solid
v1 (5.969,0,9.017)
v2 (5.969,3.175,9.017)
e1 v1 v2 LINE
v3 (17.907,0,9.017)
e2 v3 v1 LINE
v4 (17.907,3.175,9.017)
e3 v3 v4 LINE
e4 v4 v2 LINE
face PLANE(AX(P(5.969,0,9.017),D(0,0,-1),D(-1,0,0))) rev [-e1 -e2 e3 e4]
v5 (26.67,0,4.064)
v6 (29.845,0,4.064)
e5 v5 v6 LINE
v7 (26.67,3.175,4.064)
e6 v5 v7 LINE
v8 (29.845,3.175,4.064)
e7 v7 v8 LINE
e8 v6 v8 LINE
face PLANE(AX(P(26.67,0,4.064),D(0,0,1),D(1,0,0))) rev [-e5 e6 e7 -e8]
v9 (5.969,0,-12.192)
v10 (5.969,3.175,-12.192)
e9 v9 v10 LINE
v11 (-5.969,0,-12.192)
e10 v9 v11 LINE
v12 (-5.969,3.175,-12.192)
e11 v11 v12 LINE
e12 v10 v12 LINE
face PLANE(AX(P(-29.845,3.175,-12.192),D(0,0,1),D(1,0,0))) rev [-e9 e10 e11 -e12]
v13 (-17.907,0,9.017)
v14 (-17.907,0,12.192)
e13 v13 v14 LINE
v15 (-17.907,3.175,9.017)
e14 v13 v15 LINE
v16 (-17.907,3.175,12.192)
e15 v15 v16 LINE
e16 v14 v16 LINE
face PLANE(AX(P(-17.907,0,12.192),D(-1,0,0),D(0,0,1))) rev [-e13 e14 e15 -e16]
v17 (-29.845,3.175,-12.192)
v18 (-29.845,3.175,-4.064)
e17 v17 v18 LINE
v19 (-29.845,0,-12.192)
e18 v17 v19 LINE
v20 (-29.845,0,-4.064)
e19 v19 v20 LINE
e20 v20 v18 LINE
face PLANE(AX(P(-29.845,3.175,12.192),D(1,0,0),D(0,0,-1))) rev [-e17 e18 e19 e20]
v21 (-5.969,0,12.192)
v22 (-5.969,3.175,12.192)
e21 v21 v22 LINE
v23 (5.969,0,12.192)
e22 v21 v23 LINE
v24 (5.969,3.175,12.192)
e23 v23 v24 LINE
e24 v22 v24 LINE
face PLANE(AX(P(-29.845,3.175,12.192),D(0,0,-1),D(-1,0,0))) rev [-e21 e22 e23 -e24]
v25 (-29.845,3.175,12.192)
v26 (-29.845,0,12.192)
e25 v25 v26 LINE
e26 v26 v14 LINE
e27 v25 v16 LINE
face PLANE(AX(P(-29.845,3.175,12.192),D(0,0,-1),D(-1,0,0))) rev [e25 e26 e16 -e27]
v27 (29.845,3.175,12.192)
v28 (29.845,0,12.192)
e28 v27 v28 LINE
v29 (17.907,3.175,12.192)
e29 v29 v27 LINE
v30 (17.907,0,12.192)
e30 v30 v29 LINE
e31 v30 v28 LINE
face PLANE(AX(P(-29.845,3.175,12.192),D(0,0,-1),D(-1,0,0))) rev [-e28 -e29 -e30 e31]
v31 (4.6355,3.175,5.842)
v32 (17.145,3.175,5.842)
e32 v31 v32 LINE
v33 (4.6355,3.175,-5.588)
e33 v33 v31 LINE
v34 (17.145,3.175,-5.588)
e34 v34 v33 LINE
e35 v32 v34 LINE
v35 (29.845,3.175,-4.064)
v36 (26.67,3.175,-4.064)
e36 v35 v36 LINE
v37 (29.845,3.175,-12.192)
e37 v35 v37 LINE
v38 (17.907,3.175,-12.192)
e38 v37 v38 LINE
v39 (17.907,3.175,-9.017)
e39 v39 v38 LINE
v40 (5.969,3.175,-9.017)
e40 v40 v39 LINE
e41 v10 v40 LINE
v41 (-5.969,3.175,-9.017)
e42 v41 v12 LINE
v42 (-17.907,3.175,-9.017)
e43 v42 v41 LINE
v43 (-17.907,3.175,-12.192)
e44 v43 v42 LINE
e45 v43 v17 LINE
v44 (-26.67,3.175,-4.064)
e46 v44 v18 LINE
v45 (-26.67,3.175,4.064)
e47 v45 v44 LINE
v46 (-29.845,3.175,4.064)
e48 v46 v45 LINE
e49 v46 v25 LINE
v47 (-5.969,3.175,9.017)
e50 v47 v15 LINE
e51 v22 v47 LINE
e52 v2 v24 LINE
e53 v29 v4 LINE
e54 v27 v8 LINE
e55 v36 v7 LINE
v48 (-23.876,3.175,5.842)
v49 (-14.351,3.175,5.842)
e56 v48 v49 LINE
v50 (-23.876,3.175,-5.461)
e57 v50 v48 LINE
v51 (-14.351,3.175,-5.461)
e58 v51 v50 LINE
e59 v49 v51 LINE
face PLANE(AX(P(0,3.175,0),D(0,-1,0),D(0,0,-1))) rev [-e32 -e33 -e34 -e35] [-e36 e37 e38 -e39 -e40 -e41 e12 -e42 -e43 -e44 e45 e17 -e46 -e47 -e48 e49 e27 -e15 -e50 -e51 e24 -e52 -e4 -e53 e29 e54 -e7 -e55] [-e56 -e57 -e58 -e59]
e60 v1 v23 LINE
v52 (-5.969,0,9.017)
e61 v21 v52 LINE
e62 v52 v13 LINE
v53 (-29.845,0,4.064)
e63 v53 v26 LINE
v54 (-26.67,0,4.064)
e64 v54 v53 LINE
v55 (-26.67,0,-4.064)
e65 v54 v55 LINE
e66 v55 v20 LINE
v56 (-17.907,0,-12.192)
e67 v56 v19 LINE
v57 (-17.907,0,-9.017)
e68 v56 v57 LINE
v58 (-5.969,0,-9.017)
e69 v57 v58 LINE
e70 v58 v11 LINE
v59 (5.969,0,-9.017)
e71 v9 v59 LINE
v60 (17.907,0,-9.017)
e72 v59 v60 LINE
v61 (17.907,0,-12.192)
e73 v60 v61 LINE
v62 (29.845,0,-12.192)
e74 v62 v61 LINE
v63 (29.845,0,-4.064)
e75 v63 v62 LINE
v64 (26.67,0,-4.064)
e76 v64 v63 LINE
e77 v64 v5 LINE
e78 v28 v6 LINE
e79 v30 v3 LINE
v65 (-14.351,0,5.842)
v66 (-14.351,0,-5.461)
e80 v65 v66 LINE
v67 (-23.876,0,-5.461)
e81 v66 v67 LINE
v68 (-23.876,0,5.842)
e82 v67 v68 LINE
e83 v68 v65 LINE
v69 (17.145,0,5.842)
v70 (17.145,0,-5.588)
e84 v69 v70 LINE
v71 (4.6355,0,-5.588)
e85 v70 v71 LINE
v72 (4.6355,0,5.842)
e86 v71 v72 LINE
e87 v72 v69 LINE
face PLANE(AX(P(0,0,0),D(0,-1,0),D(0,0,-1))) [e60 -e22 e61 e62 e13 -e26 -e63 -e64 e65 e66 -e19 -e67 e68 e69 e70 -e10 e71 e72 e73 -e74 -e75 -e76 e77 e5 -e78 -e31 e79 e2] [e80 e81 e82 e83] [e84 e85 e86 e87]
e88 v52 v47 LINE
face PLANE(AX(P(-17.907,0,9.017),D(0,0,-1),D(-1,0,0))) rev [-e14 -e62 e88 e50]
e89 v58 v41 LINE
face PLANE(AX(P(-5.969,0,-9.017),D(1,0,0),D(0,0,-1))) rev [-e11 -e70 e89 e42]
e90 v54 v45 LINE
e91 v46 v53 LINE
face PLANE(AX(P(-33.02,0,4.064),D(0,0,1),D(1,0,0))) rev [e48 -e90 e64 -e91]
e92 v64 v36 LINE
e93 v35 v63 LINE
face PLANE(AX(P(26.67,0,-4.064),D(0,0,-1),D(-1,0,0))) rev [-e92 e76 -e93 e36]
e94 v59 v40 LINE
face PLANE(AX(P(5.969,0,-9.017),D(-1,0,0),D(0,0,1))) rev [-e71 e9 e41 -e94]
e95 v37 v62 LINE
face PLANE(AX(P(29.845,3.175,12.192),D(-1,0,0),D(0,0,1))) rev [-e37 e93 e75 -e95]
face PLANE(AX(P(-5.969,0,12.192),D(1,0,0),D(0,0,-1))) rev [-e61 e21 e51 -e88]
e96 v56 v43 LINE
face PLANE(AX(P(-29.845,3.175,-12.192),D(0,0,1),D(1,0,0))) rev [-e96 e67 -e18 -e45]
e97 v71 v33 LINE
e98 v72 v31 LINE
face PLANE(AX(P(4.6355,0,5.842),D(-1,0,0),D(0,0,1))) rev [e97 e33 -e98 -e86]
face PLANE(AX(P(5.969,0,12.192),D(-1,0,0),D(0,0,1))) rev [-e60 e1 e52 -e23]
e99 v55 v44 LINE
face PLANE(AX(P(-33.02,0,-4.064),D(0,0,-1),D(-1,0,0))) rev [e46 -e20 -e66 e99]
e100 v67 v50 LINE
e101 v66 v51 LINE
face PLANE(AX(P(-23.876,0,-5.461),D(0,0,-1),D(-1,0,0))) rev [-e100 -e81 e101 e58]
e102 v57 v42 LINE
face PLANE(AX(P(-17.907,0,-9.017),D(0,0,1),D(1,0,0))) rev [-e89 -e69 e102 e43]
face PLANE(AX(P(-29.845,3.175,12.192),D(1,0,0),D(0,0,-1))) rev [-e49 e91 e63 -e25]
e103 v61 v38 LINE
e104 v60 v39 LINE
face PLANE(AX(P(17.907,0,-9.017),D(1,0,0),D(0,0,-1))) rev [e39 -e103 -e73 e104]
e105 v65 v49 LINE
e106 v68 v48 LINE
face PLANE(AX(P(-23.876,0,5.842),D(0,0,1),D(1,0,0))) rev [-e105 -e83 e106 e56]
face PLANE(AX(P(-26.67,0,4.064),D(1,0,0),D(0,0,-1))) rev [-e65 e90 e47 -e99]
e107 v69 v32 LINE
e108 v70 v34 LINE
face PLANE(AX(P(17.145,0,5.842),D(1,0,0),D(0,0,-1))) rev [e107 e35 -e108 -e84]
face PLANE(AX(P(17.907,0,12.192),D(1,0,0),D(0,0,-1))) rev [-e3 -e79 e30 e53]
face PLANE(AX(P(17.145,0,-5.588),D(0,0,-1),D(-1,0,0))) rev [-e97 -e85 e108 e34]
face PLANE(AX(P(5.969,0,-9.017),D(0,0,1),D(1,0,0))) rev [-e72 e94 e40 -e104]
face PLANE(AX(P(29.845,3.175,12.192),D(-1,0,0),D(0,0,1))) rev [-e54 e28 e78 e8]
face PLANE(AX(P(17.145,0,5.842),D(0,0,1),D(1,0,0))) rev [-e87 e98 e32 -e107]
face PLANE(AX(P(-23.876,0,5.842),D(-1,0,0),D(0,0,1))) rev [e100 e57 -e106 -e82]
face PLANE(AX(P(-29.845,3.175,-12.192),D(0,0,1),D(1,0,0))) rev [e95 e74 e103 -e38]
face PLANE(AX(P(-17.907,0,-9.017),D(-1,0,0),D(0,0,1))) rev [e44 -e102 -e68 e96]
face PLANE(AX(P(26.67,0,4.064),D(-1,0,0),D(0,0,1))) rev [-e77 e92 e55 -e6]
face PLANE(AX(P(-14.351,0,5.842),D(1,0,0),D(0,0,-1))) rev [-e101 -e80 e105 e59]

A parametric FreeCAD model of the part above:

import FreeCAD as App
import Part
import Sketcher
Q = App.Units.Quantity

doc = App.newDocument("Part")
body = doc.addObject("PartDesign::Body", "Body")

# Sketch on XZ plane
sketch1 = body.newObject("Sketcher::SketchObject", "Sketch")
sketch1.AttachmentSupport = (doc.getObject("XZ_Plane"), [""])
sketch1.MapMode = "FlatFace"
sketch1.addGeometry([
    Part.LineSegment(App.Vector(-30, -12, 0), App.Vector(-30, 12, 0)),
    Part.LineSegment(App.Vector(-30, 12, 0), App.Vector(30, 12, 0)),
    Part.LineSegment(App.Vector(30, 12, 0), App.Vector(30, -12, 0)),
    Part.LineSegment(App.Vector(30, -12, 0), App.Vector(-30, -12, 0)),
], False)
sketch1.addConstraint([
    Sketcher.Constraint("Coincident", 0, 2, 1, 1),
    Sketcher.Constraint("Coincident", 1, 2, 2, 1),
    Sketcher.Constraint("Coincident", 2, 2, 3, 1),
    Sketcher.Constraint("Coincident", 3, 2, 0, 1),
    Sketcher.Constraint("Vertical", 0),
    Sketcher.Constraint("Horizontal", 1),
    Sketcher.Constraint("Vertical", 2),
    Sketcher.Constraint("Horizontal", 3),
    Sketcher.Constraint("Symmetric", 0, 2, 2, 2, -1, 1),
    Sketcher.Constraint("DistanceX", 1, 1, 1, 2, Q("2.35 in")),
    Sketcher.Constraint("DistanceY", 0, 1, 0, 2, Q("0.96 in")),
])
pad1 = body.newObject("PartDesign::Pad", "Pad")
pad1.Profile = sketch1
pad1.Length = Q("0.125 in")
pad1.Reversed = True

# Sketch on XZ plane
sketch2 = body.newObject("Sketcher::SketchObject", "Sketch001")
sketch2.AttachmentSupport = (doc.getObject("XZ_Plane"), [""])
sketch2.MapMode = "FlatFace"
sketch2.AttachmentOffset = App.Placement(App.Vector(0, 0, -0.125 * 25.4), App.Rotation())
sketch2.addGeometry([
    Part.LineSegment(App.Vector(6, -12.2, 0), App.Vector(6, -9, 0)),  # 0
    Part.LineSegment(App.Vector(6, -9, 0), App.Vector(17.9, -9, 0)),  # 1
    Part.LineSegment(App.Vector(17.9, -9, 0), App.Vector(17.9, -12.2, 0)),  # 2
    Part.LineSegment(App.Vector(17.9, -12.2, 0), App.Vector(6, -12.2, 0)),  # 3
    Part.LineSegment(App.Vector(6, 9, 0), App.Vector(6, 12.2, 0)),  # 4
    Part.LineSegment(App.Vector(6, 12.2, 0), App.Vector(17.9, 12.2, 0)),  # 5
    Part.LineSegment(App.Vector(17.9, 12.2, 0), App.Vector(17.9, 9, 0)),  # 6
    Part.LineSegment(App.Vector(17.9, 9, 0), App.Vector(6, 9, 0)),  # 7
], False)
sketch2.addConstraint([
    Sketcher.Constraint("Coincident", 0, 2, 1, 1),
    Sketcher.Constraint("Coincident", 1, 2, 2, 1),
    Sketcher.Constraint("Coincident", 2, 2, 3, 1),
    Sketcher.Constraint("Coincident", 3, 2, 0, 1),
    Sketcher.Constraint("Coincident", 4, 2, 5, 1),
    Sketcher.Constraint("Coincident", 5, 2, 6, 1),
    Sketcher.Constraint("Coincident", 6, 2, 7, 1),
    Sketcher.Constraint("Coincident", 7, 2, 4, 1),
    Sketcher.Constraint("Vertical", 0),
    Sketcher.Constraint("Horizontal", 1),
    Sketcher.Constraint("Vertical", 2),
    Sketcher.Constraint("Horizontal", 3),
    Sketcher.Constraint("Vertical", 4),
    Sketcher.Constraint("Horizontal", 5),
    Sketcher.Constraint("Vertical", 6),
    Sketcher.Constraint("Horizontal", 7),
    Sketcher.Constraint("Symmetric", 3, 2, 4, 2, -1),
    Sketcher.Constraint("Symmetric", 1, 2, 6, 2, -1),
    Sketcher.Constraint("DistanceX", 1, 1, 1, 2, Q("0.47 in")),
    Sketcher.Constraint("DistanceY", 0, 1, 0, 2, Q("0.125 in")),
    Sketcher.Constraint("DistanceY", 2, 2, -1, 1, Q("0.48 in")),
    Sketcher.Constraint("DistanceX", -1, 1, 0, 2, Q("0.235 in")),
])
pocket1 = body.newObject("PartDesign::Pocket", "Pocket")
pocket1.Profile = sketch2
pocket1.Length = Q("0.125 in")
pocket1.Reversed = True
doc.recompute()

linearpattern = body.newObject("PartDesign::LinearPattern", "LinearPattern")
linearpattern.Originals = [pocket1]
linearpattern.Direction = (doc.getObject("X_Axis"), [""])
linearpattern.Mode = "offset"
linearpattern.Offset = Q("0.94 in")
linearpattern.Occurrences = 2
linearpattern.Reversed = True
body.Tip = linearpattern

# Sketch on XZ plane
sketch3 = body.newObject("Sketcher::SketchObject", "Sketch002")
sketch3.AttachmentSupport = (doc.getObject("XZ_Plane"), [""])
sketch3.MapMode = "FlatFace"
sketch3.AttachmentOffset = App.Placement(App.Vector(0, 0, -0.125 * 25.4), App.Rotation())
sketch3.addGeometry([
    Part.LineSegment(App.Vector(-33, -4, 0), App.Vector(-33, 4, 0)),  # 0
    Part.LineSegment(App.Vector(-33, 4, 0), App.Vector(-27, 4, 0)),  # 1
    Part.LineSegment(App.Vector(-27, 4, 0), App.Vector(-27, -4, 0)),  # 2
    Part.LineSegment(App.Vector(-27, -4, 0), App.Vector(-33, -4, 0)),  # 3
    Part.LineSegment(App.Vector(27, -4, 0), App.Vector(27, 4, 0)),  # 4
    Part.LineSegment(App.Vector(27, 4, 0), App.Vector(33, 4, 0)),  # 5
    Part.LineSegment(App.Vector(33, 4, 0), App.Vector(33, -4, 0)),  # 6
    Part.LineSegment(App.Vector(33, -4, 0), App.Vector(27, -4, 0)),  # 7
], False)
sketch3.addConstraint([
    Sketcher.Constraint("Coincident", 0, 2, 1, 1),
    Sketcher.Constraint("Coincident", 1, 2, 2, 1),
    Sketcher.Constraint("Coincident", 2, 2, 3, 1),
    Sketcher.Constraint("Coincident", 3, 2, 0, 1),
    Sketcher.Constraint("Coincident", 4, 2, 5, 1),
    Sketcher.Constraint("Coincident", 5, 2, 6, 1),
    Sketcher.Constraint("Coincident", 6, 2, 7, 1),
    Sketcher.Constraint("Coincident", 7, 2, 4, 1),
    Sketcher.Constraint("Vertical", 0),
    Sketcher.Constraint("Horizontal", 1),
    Sketcher.Constraint("Vertical", 2),
    Sketcher.Constraint("Horizontal", 3),
    Sketcher.Constraint("Vertical", 4),
    Sketcher.Constraint("Horizontal", 5),
    Sketcher.Constraint("Vertical", 6),
    Sketcher.Constraint("Horizontal", 7),
    Sketcher.Constraint("Symmetric", 2, 2, 4, 2, -1, 1),
    Sketcher.Constraint("Symmetric", 0, 2, 6, 2, -1, 1),
    Sketcher.Constraint("Horizontal", 1, 2, 4, 2),
    Sketcher.Constraint("DistanceX", 1, 1, 1, 2, Q("0.25 in")),
    Sketcher.Constraint("DistanceY", 0, 1, 0, 2, Q("0.32 in")),
    Sketcher.Constraint("DistanceX", 0, 2, -1, 1, Q("1.3 in")),
])
pocket2 = body.newObject("PartDesign::Pocket", "Pocket001")
pocket2.Profile = sketch3
pocket2.Length = Q("0.125 in")
pocket2.Reversed = True

# Sketch on XZ plane
sketch4 = body.newObject("Sketcher::SketchObject", "Sketch003")
sketch4.AttachmentSupport = (doc.getObject("XZ_Plane"), [""])
sketch4.MapMode = "FlatFace"
sketch4.AttachmentOffset = App.Placement(App.Vector(0, 0, -0.125 * 25.4), App.Rotation())
sketch4.addGeometry([
    Part.LineSegment(App.Vector(-24, -5, 0), App.Vector(-24, 6, 0)),  # 0
    Part.LineSegment(App.Vector(-24, 6, 0), App.Vector(-14, 6, 0)),  # 1
    Part.LineSegment(App.Vector(-14, 6, 0), App.Vector(-14, -5, 0)),  # 2
    Part.LineSegment(App.Vector(-14, -5, 0), App.Vector(-24, -5, 0)),  # 3
    Part.LineSegment(App.Vector(5, -6, 0), App.Vector(5, 6, 0)),  # 4
    Part.LineSegment(App.Vector(5, 6, 0), App.Vector(17, 6, 0)),  # 5
    Part.LineSegment(App.Vector(17, 6, 0), App.Vector(17, -6, 0)),  # 6
    Part.LineSegment(App.Vector(17, -6, 0), App.Vector(5, -6, 0)),  # 7
], False)
sketch4.addConstraint([
    Sketcher.Constraint("Coincident", 0, 2, 1, 1),
    Sketcher.Constraint("Coincident", 1, 2, 2, 1),
    Sketcher.Constraint("Coincident", 2, 2, 3, 1),
    Sketcher.Constraint("Coincident", 3, 2, 0, 1),
    Sketcher.Constraint("Coincident", 4, 2, 5, 1),
    Sketcher.Constraint("Coincident", 5, 2, 6, 1),
    Sketcher.Constraint("Coincident", 6, 2, 7, 1),
    Sketcher.Constraint("Coincident", 7, 2, 4, 1),
    Sketcher.Constraint("Vertical", 0),
    Sketcher.Constraint("Horizontal", 1),
    Sketcher.Constraint("Vertical", 2),
    Sketcher.Constraint("Horizontal", 3),
    Sketcher.Constraint("Vertical", 4),
    Sketcher.Constraint("Horizontal", 5),
    Sketcher.Constraint("Vertical", 6),
    Sketcher.Constraint("Horizontal", 7),
    Sketcher.Constraint("Horizontal", 1, 2, 4, 2),
    Sketcher.Constraint("DistanceY", 4, 1, 4, 2, Q("0.45 in")),
    Sketcher.Constraint("DistanceX", 1, 1, 1, 2, Q("0.375 in")),
    Sketcher.Constraint("DistanceY", 0, 1, 0, 2, Q("0.445 in")),
    Sketcher.Constraint("DistanceX", 0, 2, -1, 1, Q("0.94 in")),
    Sketcher.Constraint("DistanceY", -1, 1, 0, 2, Q("0.23 in")),
    Sketcher.Constraint("DistanceX", 1, 2, 5, 2, Q("1.24 in")),
    Sketcher.Constraint("DistanceX", 5, 1, 5, 2, Q("0.4925 in")),
])
pocket3 = body.newObject("PartDesign::Pocket", "Pocket002")
pocket3.Profile = sketch4
pocket3.Length = Q("0.125 in")
pocket3.Reversed = True

doc.recompute()
